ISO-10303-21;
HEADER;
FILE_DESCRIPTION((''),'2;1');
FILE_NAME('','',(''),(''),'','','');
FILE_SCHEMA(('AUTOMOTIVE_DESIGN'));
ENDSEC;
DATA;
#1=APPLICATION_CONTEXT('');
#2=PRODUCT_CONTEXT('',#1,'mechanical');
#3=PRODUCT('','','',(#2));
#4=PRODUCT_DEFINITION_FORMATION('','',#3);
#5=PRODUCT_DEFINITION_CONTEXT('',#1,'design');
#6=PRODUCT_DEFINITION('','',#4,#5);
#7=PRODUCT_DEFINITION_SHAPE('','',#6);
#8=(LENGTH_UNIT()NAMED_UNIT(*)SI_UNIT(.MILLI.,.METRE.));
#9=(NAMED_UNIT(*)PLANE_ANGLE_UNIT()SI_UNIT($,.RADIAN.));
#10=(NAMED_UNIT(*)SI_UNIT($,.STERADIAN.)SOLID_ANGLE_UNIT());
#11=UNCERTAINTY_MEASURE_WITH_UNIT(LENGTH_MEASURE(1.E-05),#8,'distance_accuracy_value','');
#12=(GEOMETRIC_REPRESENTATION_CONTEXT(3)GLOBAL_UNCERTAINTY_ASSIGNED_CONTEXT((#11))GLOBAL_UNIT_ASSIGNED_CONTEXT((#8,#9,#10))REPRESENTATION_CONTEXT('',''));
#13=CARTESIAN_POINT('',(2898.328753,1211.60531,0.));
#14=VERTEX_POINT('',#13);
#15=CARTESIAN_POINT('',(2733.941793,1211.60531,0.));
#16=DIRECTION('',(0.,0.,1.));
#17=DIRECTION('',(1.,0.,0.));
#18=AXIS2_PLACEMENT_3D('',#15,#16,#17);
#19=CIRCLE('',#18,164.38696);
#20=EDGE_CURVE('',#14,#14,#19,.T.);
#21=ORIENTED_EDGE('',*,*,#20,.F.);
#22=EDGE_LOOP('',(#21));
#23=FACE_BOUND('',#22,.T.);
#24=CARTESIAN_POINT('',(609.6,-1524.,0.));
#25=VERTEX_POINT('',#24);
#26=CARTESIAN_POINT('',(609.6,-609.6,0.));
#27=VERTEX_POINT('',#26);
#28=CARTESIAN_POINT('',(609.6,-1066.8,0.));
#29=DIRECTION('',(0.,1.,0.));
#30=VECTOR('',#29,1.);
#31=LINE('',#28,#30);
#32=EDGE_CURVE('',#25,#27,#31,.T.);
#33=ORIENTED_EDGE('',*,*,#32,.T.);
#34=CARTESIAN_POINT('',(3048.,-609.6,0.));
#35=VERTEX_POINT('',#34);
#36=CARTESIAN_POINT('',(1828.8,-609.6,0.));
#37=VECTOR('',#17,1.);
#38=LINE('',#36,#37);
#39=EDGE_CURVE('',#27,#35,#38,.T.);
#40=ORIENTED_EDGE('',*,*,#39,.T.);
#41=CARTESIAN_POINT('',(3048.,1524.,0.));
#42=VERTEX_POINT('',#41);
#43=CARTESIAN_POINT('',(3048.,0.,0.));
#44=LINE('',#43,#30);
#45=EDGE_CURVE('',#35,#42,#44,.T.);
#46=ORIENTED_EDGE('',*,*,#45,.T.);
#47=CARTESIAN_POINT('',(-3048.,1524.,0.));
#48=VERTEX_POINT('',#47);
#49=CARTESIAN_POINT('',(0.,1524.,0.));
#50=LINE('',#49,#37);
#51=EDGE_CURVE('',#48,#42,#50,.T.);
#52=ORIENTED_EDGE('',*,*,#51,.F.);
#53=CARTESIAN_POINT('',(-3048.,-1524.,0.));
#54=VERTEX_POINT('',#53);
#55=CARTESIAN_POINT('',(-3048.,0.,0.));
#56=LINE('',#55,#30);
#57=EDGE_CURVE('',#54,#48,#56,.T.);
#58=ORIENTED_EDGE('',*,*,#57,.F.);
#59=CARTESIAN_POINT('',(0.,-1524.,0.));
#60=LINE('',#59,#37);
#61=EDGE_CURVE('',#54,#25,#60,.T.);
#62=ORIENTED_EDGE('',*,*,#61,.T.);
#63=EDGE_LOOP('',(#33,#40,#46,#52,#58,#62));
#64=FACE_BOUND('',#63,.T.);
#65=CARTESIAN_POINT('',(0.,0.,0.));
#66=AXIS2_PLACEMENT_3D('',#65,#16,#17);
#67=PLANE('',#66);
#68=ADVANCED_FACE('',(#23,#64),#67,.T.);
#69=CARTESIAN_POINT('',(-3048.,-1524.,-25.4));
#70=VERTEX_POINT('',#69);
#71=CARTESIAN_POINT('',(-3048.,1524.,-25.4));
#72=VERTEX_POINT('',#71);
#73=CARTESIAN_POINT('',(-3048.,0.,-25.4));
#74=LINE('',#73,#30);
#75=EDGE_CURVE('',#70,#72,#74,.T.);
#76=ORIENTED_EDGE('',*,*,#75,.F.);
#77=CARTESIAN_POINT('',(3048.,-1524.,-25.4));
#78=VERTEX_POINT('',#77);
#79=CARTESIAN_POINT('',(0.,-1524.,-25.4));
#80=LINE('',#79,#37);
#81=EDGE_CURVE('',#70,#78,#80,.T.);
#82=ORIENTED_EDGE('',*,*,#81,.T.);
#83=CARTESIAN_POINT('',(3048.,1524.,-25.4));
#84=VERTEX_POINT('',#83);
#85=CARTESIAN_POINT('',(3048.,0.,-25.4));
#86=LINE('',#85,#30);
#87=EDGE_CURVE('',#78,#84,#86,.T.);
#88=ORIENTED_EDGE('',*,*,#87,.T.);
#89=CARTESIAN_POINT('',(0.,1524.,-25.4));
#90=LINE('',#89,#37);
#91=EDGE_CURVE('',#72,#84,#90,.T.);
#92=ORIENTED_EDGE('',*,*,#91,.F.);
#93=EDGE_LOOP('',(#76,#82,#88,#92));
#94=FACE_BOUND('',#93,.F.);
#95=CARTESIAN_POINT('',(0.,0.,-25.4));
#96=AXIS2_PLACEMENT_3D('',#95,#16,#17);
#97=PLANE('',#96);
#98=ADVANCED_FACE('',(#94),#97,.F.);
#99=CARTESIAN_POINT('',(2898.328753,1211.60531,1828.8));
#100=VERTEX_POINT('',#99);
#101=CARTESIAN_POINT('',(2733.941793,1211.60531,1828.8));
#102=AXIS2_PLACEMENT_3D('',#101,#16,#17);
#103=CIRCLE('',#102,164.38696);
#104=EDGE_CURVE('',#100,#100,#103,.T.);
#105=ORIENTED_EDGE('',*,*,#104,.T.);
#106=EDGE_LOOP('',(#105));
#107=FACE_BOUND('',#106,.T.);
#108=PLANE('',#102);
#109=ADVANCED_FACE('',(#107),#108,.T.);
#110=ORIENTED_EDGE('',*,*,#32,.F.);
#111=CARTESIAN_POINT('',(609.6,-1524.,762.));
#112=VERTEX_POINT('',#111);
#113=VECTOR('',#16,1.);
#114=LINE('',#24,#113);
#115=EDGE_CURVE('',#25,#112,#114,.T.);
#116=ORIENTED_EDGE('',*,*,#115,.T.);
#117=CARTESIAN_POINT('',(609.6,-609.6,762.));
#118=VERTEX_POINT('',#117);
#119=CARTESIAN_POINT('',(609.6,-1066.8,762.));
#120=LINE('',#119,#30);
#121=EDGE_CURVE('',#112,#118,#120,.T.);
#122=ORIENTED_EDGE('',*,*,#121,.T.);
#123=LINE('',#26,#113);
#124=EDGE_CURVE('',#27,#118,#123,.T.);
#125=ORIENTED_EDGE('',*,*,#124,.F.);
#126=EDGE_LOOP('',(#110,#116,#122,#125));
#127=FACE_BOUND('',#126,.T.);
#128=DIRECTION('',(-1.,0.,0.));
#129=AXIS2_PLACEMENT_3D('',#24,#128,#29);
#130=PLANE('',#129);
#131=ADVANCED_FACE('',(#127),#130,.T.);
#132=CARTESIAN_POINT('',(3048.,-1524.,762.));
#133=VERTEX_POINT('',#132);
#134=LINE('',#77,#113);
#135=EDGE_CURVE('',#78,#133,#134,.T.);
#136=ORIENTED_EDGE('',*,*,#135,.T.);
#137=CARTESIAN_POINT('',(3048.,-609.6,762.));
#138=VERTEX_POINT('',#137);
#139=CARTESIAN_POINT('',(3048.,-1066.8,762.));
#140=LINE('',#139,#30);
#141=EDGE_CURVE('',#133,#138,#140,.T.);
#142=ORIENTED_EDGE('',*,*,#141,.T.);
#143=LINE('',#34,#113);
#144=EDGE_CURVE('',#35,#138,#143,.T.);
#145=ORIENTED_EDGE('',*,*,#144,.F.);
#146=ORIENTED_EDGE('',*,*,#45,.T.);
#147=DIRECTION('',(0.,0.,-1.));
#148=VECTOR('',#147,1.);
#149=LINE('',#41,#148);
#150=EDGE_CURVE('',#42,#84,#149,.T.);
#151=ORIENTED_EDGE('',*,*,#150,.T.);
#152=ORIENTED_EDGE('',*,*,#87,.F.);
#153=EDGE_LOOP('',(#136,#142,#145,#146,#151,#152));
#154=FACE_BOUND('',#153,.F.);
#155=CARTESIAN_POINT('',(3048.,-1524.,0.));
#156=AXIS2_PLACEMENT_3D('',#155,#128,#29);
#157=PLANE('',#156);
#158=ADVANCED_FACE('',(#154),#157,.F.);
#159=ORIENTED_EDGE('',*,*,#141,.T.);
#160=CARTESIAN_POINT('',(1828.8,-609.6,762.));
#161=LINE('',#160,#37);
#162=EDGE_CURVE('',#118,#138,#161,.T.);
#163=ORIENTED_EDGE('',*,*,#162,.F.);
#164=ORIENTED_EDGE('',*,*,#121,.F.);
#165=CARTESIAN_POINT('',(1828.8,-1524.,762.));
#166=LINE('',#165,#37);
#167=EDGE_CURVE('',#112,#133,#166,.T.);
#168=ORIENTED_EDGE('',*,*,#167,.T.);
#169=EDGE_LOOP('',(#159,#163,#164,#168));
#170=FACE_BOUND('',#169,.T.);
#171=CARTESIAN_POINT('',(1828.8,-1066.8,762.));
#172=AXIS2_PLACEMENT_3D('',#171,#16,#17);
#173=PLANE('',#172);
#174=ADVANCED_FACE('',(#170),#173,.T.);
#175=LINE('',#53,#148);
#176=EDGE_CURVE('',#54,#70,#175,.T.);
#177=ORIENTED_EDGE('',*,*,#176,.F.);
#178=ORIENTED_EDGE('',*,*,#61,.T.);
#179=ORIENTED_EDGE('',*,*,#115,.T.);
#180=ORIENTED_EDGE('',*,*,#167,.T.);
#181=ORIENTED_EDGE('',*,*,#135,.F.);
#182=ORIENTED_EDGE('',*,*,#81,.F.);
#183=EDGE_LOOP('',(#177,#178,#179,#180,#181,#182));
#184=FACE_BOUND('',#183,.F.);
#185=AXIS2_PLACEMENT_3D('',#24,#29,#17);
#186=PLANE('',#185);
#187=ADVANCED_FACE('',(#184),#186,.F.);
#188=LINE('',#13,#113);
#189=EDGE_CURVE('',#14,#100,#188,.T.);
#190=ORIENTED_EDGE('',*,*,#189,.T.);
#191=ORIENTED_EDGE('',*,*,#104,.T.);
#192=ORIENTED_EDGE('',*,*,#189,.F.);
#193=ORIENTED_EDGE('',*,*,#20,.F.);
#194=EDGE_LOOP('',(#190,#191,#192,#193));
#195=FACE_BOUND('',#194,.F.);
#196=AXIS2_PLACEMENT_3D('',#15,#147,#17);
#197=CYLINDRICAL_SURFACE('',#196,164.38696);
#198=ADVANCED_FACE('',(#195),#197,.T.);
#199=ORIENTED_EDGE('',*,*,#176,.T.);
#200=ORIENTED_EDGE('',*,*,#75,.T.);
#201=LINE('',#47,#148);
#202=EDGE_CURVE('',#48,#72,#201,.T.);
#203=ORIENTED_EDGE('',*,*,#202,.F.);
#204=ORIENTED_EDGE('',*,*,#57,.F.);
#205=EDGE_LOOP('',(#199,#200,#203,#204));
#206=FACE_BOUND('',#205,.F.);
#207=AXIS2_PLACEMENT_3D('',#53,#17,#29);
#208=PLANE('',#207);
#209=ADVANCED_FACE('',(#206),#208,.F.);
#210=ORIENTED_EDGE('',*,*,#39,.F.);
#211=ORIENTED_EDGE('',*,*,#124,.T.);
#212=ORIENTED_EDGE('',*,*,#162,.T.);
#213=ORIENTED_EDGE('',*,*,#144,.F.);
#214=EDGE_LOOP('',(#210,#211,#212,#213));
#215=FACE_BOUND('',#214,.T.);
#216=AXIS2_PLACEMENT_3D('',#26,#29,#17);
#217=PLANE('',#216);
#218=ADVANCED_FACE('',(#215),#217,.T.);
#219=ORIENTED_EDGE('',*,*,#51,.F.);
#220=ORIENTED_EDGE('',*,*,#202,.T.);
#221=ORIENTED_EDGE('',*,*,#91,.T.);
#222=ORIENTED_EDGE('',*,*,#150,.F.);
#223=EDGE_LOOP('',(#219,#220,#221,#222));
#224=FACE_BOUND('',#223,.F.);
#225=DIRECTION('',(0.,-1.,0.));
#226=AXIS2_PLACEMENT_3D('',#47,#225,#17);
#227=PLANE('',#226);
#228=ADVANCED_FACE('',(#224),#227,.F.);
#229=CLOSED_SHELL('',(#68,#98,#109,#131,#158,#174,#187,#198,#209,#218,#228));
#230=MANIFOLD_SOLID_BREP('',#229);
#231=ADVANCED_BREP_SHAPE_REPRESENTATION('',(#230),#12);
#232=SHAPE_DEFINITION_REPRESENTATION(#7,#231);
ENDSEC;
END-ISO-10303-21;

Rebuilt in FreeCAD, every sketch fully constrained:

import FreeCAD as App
import Part
import Sketcher
from FreeCAD import Vector
Q = App.Units.Quantity

doc = App.newDocument("Part")
body = doc.addObject("PartDesign::Body", "Body")

# Sketch on XY plane
sketch1 = body.newObject("Sketcher::SketchObject", "Sketch")
sketch1.AttachmentSupport = (doc.getObject("XY_Plane"), [""])
sketch1.MapMode = "FlatFace"
sketch1.addGeometry([
    Part.LineSegment(Vector(-3048, 1524, 0), Vector(-3048, -1524, 0)),
    Part.LineSegment(Vector(-3048, -1524, 0), Vector(3048, -1524, 0)),
    Part.LineSegment(Vector(3048, -1524, 0), Vector(3048, 1524, 0)),
    Part.LineSegment(Vector(3048, 1524, 0), Vector(-3048, 1524, 0)),
], False)
sketch1.addConstraint([
    Sketcher.Constraint("Coincident", 0, 2, 1, 1),
    Sketcher.Constraint("Coincident", 1, 2, 2, 1),
    Sketcher.Constraint("Coincident", 2, 2, 3, 1),
    Sketcher.Constraint("Coincident", 3, 2, 0, 1),
    Sketcher.Constraint("Vertical", 0),
    Sketcher.Constraint("Horizontal", 1),
    Sketcher.Constraint("Vertical", 2),
    Sketcher.Constraint("Horizontal", 3),
    Sketcher.Constraint("Symmetric", 0, 2, 2, 2, -1, 1),
    Sketcher.Constraint("DistanceX", 1, 1, 1, 2, Q("240 in")),
    Sketcher.Constraint("DistanceY", 0, 2, 0, 1, Q("120 in")),
])
pad1 = body.newObject("PartDesign::Pad", "Pad")
pad1.Profile = sketch1
pad1.Length = Q("1 in")
pad1.Reversed = True

# Sketch on XY plane
sketch2 = body.newObject("Sketcher::SketchObject", "Sketch001")
sketch2.AttachmentSupport = (doc.getObject("XY_Plane"), [""])
sketch2.MapMode = "FlatFace"
sketch2.addGeometry([
    Part.LineSegment(Vector(610, -610, 0), Vector(610, -1524, 0)),
    Part.LineSegment(Vector(610, -1524, 0), Vector(3048, -1524, 0)),
    Part.LineSegment(Vector(3048, -1524, 0), Vector(3048, -610, 0)),
    Part.LineSegment(Vector(3048, -610, 0), Vector(610, -610, 0)),
], False)
sketch2.addConstraint([
    Sketcher.Constraint("Coincident", 0, 2, 1, 1),
    Sketcher.Constraint("Coincident", 1, 2, 2, 1),
    Sketcher.Constraint("Coincident", 2, 2, 3, 1),
    Sketcher.Constraint("Coincident", 3, 2, 0, 1),
    Sketcher.Constraint("Vertical", 0),
    Sketcher.Constraint("Horizontal", 1),
    Sketcher.Constraint("Vertical", 2),
    Sketcher.Constraint("Horizontal", 3),
    Sketcher.Constraint("DistanceX", 1, 1, 1, 2, Q("96 in")),
    Sketcher.Constraint("DistanceY", 0, 2, 0, 1, Q("36 in")),
    Sketcher.Constraint("DistanceX", -1, 1, 0, 2, Q("24 in")),
    Sketcher.Constraint("DistanceY", 0, 2, -1, 1, Q("60 in")),
])
pad2 = body.newObject("PartDesign::Pad", "Pad001")
pad2.Profile = sketch2
pad2.Length = Q("30 in")

# Sketch on XY plane
sketch3 = body.newObject("Sketcher::SketchObject", "Sketch002")
sketch3.AttachmentSupport = (doc.getObject("XY_Plane"), [""])
sketch3.MapMode = "FlatFace"
sketch3.addGeometry(Part.Circle(Vector(2734, 1212, 0), Vector(0, 0, 1), 164), False)
sketch3.addConstraint([
    Sketcher.Constraint("Diameter", 0, 328.77392),
    Sketcher.Constraint("DistanceY", -1, 1, 0, 3, 1211.60531),
    Sketcher.Constraint("DistanceX", -1, 1, 0, 3, 2733.941793),
])
pad3 = body.newObject("PartDesign::Pad", "Pad002")
pad3.Profile = sketch3
pad3.Length = Q("72 in")

doc.recompute()
